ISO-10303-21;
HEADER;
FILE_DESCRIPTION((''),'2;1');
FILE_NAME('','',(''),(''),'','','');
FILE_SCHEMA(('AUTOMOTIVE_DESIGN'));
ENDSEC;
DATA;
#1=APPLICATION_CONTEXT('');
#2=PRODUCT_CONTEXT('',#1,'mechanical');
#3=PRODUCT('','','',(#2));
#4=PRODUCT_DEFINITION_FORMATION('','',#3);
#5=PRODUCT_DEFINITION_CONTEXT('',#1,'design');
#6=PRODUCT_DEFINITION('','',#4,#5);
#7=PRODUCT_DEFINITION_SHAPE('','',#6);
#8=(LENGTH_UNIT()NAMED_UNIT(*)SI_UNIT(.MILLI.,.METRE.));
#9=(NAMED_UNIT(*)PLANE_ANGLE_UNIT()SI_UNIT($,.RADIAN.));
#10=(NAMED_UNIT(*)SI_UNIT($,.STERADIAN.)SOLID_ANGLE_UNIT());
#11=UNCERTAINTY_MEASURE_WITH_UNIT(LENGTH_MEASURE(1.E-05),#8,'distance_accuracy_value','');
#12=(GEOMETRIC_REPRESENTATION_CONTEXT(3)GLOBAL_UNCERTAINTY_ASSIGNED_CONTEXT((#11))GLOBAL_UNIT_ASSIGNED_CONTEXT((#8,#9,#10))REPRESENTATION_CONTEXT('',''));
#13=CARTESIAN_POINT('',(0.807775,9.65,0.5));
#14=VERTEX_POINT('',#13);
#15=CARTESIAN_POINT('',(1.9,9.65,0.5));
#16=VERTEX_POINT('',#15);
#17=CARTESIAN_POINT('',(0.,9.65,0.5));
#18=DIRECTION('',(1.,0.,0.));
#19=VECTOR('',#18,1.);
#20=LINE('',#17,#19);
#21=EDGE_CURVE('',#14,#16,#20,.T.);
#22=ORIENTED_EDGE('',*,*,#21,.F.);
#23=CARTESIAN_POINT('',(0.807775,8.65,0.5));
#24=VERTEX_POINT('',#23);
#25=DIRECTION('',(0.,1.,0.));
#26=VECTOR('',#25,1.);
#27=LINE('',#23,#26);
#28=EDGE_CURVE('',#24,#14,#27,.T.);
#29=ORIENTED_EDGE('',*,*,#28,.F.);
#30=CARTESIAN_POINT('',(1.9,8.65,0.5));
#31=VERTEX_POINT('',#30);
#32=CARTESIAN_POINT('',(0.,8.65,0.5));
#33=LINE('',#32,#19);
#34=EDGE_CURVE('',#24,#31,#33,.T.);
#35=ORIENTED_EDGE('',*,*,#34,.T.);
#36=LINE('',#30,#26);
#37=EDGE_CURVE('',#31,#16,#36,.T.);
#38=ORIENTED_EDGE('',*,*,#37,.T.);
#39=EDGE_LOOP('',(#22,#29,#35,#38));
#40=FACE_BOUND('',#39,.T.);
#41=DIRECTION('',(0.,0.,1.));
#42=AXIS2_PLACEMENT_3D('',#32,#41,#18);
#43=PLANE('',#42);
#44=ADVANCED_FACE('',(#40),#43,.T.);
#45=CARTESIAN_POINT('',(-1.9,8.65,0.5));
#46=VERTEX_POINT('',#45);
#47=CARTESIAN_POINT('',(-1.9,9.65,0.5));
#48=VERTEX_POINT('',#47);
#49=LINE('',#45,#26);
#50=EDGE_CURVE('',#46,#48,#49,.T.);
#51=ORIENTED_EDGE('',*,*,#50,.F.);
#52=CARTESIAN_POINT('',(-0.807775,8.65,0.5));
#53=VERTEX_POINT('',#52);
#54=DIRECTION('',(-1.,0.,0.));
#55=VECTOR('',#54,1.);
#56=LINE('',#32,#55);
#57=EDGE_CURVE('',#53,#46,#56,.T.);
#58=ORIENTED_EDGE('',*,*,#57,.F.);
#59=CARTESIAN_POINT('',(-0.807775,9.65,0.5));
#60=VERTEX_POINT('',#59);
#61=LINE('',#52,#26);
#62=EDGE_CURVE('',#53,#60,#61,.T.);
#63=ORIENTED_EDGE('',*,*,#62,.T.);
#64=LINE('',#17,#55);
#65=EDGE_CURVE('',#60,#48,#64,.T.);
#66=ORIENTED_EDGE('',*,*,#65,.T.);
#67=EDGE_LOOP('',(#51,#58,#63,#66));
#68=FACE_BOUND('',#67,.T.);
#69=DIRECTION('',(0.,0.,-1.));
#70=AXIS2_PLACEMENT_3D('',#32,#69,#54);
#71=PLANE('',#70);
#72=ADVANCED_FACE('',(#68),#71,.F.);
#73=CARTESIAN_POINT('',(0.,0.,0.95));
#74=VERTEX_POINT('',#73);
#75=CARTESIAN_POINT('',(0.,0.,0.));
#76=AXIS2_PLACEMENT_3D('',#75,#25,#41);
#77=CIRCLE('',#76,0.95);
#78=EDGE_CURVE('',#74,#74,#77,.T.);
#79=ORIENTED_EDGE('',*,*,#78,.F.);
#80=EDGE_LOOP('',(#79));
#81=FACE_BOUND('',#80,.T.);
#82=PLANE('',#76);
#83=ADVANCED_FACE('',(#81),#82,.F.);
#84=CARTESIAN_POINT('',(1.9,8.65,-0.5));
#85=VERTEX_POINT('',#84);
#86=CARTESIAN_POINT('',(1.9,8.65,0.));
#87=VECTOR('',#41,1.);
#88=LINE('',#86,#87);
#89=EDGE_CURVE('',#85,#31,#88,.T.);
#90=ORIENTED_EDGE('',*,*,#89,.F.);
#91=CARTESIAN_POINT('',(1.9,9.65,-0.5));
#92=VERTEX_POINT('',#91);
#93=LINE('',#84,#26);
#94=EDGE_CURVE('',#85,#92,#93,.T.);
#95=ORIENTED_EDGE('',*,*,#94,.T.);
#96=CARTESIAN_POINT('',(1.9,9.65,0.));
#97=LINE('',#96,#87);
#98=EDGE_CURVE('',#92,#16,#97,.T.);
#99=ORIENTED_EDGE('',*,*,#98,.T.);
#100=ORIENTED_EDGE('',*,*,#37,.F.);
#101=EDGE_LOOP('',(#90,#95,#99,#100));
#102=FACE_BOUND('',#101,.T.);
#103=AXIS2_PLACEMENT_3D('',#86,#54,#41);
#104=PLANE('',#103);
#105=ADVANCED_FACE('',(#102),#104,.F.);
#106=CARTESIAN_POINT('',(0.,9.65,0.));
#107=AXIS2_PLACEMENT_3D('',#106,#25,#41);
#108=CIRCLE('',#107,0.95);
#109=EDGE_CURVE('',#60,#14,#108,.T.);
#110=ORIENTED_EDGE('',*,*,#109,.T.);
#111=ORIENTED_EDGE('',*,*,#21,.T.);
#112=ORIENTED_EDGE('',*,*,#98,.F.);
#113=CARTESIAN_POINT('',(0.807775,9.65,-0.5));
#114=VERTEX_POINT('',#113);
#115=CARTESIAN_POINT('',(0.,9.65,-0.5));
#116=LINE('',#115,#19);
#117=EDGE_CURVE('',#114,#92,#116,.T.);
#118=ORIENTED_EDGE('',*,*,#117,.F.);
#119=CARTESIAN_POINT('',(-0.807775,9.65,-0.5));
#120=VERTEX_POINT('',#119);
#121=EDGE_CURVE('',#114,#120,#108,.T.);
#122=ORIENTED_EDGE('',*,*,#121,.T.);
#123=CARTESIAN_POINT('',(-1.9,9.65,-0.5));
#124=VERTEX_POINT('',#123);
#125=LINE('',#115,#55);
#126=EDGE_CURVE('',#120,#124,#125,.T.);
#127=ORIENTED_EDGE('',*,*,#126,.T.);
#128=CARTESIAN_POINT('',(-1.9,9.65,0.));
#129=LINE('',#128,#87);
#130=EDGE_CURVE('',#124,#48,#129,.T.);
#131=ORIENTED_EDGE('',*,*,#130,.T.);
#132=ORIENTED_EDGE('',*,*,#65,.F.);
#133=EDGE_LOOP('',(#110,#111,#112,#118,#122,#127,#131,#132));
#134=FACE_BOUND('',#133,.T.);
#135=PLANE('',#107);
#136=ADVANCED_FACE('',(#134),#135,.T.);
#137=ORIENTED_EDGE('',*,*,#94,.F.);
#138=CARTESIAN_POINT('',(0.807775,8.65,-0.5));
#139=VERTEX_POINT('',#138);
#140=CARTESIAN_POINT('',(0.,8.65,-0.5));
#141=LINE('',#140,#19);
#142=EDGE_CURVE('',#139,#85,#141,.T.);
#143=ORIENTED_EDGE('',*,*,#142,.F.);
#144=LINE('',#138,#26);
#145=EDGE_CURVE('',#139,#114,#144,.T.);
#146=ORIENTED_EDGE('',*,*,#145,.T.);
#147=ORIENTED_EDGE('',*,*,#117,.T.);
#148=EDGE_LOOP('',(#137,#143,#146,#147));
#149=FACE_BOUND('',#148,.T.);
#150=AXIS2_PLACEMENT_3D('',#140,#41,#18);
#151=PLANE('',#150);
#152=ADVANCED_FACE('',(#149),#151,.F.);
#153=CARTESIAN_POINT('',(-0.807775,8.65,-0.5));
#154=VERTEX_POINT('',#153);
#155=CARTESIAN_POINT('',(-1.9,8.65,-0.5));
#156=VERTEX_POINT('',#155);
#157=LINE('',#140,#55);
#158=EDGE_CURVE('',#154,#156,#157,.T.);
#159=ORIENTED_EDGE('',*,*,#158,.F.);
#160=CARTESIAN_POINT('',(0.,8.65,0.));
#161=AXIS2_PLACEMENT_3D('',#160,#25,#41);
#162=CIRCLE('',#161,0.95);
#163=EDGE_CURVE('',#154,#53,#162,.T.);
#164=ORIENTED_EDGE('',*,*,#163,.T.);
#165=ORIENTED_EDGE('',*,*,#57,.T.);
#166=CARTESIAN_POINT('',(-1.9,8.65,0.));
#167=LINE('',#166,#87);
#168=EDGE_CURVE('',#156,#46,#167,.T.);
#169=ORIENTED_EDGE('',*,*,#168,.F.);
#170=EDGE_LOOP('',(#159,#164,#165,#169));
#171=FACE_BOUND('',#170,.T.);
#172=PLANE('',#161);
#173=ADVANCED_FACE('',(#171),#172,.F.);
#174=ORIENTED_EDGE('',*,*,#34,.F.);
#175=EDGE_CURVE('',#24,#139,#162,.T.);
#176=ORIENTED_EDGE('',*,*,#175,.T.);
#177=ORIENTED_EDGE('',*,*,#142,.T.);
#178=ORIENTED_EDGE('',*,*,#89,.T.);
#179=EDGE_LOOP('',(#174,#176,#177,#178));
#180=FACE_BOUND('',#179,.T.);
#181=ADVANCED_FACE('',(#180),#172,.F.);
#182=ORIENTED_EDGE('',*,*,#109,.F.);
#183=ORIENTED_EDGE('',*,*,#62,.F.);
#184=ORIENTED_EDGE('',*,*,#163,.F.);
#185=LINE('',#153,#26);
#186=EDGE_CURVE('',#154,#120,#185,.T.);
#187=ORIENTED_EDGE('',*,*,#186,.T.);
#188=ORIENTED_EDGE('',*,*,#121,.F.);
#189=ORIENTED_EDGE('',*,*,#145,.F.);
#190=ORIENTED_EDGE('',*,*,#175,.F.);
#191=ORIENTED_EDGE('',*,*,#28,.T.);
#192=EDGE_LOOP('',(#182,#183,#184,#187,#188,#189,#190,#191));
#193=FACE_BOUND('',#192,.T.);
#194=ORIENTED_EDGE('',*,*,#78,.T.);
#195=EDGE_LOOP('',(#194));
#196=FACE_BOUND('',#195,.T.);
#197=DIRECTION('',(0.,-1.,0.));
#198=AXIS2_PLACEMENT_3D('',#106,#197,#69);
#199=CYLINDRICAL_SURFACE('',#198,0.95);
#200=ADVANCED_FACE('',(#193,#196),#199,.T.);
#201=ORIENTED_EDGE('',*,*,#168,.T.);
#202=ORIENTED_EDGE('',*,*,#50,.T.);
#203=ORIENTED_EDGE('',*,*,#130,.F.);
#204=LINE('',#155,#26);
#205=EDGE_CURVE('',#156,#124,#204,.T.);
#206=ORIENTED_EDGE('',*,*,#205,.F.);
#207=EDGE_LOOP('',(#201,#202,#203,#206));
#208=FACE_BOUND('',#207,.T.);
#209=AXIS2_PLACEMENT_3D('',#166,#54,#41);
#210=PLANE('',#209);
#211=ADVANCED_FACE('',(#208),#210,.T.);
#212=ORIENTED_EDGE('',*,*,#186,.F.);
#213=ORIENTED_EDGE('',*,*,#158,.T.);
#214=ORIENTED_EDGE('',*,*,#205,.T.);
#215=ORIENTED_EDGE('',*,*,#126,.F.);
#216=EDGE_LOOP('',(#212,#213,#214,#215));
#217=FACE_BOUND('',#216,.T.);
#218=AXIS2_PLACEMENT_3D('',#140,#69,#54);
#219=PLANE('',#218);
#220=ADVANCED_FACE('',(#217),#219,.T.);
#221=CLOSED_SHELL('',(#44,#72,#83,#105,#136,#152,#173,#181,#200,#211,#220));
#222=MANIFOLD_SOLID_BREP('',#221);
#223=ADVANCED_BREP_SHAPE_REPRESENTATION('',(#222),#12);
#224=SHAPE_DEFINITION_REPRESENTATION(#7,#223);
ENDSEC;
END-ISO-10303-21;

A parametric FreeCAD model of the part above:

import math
import FreeCAD as App
import Part
import Sketcher
from FreeCAD import Vector
Q = App.Units.Quantity

doc = App.newDocument("Part")
body = doc.addObject("PartDesign::Body", "Body")

sketch1 = body.newObject("Sketcher::SketchObject", "Sketch")
sketch1.AttachmentSupport = (doc.getObject("XZ_Plane"), [""])
sketch1.MapMode = "FlatFace"
sketch1.addGeometry(Part.Circle(Vector(0, 0, 0), Vector(0, 0, 1), 0.9), False)
sketch1.addConstraint(Sketcher.Constraint("Coincident", 0, 3, -1, 1))
sketch1.addConstraint(Sketcher.Constraint("Diameter", 0, Q("1.9 mm")))
pad1 = body.newObject("PartDesign::Pad", "Pad")
pad1.Profile = sketch1
pad1.Length = 9.65
pad1.Reversed = True

sketch2 = body.newObject("Sketcher::SketchObject", "Sketch001")
sketch2.AttachmentSupport = (doc.getObject("XZ_Plane"), [""])
sketch2.MapMode = "FlatFace"
sketch2.AttachmentOffset = App.Placement(Vector(0, 0, -9.65), App.Rotation())
sketch2.addGeometry(Part.ArcOfCircle(Part.Circle(Vector(0, 0, 0), Vector(0, 0, 1), 0.9), math.radians(148), math.radians(212)), False)
sketch2.addGeometry(Part.LineSegment(Vector(-0.8, -0.5, 0), Vector(-1.9, -0.5, 0)), False)
sketch2.addGeometry(Part.LineSegment(Vector(-1.9, -0.5, 0), Vector(-1.9, 0.5, 0)), False)
sketch2.addGeometry(Part.LineSegment(Vector(-1.9, 0.5, 0), Vector(-0.8, 0.5, 0)), False)
sketch2.addGeometry(Part.LineSegment(Vector(1.9, -0.5, 0), Vector(0.8, -0.5, 0)), False)
sketch2.addGeometry(Part.ArcOfCircle(Part.Circle(Vector(0, 0, 0), Vector(0, 0, 1), 1), math.radians(-32), math.radians(0)), False)
sketch2.addGeometry(Part.ArcOfCircle(Part.Circle(Vector(0, 0, 0), Vector(0, 0, 1), 1), math.radians(0), math.radians(32)), False)
sketch2.addGeometry(Part.LineSegment(Vector(0.8, 0.5, 0), Vector(1.9, 0.5, 0)), False)
sketch2.addGeometry(Part.LineSegment(Vector(1.9, 0.5, 0), Vector(1.9, -0.5, 0)), False)
sketch2.addConstraint(Sketcher.Constraint("Coincident", 0, 2, 1, 1))
sketch2.addConstraint(Sketcher.Constraint("Coincident", 1, 2, 2, 1))
sketch2.addConstraint(Sketcher.Constraint("Coincident", 2, 2, 3, 1))
sketch2.addConstraint(Sketcher.Constraint("Coincident", 3, 2, 0, 1))
sketch2.addConstraint(Sketcher.Constraint("Coincident", 4, 2, 5, 1))
sketch2.addConstraint(Sketcher.Constraint("Tangent", 5, 2, 6, 1))
sketch2.addConstraint(Sketcher.Constraint("Coincident", 6, 2, 7, 1))
sketch2.addConstraint(Sketcher.Constraint("Coincident", 7, 2, 8, 1))
sketch2.addConstraint(Sketcher.Constraint("Coincident", 8, 2, 4, 1))
sketch2.addConstraint(Sketcher.Constraint("Horizontal", 1))
sketch2.addConstraint(Sketcher.Constraint("Vertical", 2))
sketch2.addConstraint(Sketcher.Constraint("Horizontal", 3))
sketch2.addConstraint(Sketcher.Constraint("Horizontal", 4))
sketch2.addConstraint(Sketcher.Constraint("Horizontal", 7))
sketch2.addConstraint(Sketcher.Constraint("Vertical", 8))
sketch2.addConstraint(Sketcher.Constraint("Coincident", 0, 3, -1, 1))
sketch2.addConstraint(Sketcher.Constraint("Coincident", 5, 3, -1, 1))
sketch2.addConstraint(Sketcher.Constraint("Equal", 0, 5))
sketch2.addConstraint(Sketcher.Constraint("Equal", 5, 6))
sketch2.addConstraint(Sketcher.Constraint("Symmetric", 1, 2, 7, 2, -1, 1))
sketch2.addConstraint(Sketcher.Constraint("PointOnObject", 5, 2, -1))
sketch2.addConstraint(Sketcher.Constraint("Horizontal", 1, 2, 4, 2))
sketch2.addConstraint(Sketcher.Constraint("Horizontal", 3, 2, 6, 2))
sketch2.addConstraint(Sketcher.Constraint("DistanceY", 2, 1, 2, 2, Q("1 mm")))
sketch2.addConstraint(Sketcher.Constraint("Radius", 0, Q("0.95 mm")))
sketch2.addConstraint(Sketcher.Constraint("DistanceX", 1, 2, -1, 1, Q("1.9 mm")))
pad2 = body.newObject("PartDesign::Pad", "Pad001")
pad2.Profile = sketch2
pad2.Length = 1

doc.recompute()
